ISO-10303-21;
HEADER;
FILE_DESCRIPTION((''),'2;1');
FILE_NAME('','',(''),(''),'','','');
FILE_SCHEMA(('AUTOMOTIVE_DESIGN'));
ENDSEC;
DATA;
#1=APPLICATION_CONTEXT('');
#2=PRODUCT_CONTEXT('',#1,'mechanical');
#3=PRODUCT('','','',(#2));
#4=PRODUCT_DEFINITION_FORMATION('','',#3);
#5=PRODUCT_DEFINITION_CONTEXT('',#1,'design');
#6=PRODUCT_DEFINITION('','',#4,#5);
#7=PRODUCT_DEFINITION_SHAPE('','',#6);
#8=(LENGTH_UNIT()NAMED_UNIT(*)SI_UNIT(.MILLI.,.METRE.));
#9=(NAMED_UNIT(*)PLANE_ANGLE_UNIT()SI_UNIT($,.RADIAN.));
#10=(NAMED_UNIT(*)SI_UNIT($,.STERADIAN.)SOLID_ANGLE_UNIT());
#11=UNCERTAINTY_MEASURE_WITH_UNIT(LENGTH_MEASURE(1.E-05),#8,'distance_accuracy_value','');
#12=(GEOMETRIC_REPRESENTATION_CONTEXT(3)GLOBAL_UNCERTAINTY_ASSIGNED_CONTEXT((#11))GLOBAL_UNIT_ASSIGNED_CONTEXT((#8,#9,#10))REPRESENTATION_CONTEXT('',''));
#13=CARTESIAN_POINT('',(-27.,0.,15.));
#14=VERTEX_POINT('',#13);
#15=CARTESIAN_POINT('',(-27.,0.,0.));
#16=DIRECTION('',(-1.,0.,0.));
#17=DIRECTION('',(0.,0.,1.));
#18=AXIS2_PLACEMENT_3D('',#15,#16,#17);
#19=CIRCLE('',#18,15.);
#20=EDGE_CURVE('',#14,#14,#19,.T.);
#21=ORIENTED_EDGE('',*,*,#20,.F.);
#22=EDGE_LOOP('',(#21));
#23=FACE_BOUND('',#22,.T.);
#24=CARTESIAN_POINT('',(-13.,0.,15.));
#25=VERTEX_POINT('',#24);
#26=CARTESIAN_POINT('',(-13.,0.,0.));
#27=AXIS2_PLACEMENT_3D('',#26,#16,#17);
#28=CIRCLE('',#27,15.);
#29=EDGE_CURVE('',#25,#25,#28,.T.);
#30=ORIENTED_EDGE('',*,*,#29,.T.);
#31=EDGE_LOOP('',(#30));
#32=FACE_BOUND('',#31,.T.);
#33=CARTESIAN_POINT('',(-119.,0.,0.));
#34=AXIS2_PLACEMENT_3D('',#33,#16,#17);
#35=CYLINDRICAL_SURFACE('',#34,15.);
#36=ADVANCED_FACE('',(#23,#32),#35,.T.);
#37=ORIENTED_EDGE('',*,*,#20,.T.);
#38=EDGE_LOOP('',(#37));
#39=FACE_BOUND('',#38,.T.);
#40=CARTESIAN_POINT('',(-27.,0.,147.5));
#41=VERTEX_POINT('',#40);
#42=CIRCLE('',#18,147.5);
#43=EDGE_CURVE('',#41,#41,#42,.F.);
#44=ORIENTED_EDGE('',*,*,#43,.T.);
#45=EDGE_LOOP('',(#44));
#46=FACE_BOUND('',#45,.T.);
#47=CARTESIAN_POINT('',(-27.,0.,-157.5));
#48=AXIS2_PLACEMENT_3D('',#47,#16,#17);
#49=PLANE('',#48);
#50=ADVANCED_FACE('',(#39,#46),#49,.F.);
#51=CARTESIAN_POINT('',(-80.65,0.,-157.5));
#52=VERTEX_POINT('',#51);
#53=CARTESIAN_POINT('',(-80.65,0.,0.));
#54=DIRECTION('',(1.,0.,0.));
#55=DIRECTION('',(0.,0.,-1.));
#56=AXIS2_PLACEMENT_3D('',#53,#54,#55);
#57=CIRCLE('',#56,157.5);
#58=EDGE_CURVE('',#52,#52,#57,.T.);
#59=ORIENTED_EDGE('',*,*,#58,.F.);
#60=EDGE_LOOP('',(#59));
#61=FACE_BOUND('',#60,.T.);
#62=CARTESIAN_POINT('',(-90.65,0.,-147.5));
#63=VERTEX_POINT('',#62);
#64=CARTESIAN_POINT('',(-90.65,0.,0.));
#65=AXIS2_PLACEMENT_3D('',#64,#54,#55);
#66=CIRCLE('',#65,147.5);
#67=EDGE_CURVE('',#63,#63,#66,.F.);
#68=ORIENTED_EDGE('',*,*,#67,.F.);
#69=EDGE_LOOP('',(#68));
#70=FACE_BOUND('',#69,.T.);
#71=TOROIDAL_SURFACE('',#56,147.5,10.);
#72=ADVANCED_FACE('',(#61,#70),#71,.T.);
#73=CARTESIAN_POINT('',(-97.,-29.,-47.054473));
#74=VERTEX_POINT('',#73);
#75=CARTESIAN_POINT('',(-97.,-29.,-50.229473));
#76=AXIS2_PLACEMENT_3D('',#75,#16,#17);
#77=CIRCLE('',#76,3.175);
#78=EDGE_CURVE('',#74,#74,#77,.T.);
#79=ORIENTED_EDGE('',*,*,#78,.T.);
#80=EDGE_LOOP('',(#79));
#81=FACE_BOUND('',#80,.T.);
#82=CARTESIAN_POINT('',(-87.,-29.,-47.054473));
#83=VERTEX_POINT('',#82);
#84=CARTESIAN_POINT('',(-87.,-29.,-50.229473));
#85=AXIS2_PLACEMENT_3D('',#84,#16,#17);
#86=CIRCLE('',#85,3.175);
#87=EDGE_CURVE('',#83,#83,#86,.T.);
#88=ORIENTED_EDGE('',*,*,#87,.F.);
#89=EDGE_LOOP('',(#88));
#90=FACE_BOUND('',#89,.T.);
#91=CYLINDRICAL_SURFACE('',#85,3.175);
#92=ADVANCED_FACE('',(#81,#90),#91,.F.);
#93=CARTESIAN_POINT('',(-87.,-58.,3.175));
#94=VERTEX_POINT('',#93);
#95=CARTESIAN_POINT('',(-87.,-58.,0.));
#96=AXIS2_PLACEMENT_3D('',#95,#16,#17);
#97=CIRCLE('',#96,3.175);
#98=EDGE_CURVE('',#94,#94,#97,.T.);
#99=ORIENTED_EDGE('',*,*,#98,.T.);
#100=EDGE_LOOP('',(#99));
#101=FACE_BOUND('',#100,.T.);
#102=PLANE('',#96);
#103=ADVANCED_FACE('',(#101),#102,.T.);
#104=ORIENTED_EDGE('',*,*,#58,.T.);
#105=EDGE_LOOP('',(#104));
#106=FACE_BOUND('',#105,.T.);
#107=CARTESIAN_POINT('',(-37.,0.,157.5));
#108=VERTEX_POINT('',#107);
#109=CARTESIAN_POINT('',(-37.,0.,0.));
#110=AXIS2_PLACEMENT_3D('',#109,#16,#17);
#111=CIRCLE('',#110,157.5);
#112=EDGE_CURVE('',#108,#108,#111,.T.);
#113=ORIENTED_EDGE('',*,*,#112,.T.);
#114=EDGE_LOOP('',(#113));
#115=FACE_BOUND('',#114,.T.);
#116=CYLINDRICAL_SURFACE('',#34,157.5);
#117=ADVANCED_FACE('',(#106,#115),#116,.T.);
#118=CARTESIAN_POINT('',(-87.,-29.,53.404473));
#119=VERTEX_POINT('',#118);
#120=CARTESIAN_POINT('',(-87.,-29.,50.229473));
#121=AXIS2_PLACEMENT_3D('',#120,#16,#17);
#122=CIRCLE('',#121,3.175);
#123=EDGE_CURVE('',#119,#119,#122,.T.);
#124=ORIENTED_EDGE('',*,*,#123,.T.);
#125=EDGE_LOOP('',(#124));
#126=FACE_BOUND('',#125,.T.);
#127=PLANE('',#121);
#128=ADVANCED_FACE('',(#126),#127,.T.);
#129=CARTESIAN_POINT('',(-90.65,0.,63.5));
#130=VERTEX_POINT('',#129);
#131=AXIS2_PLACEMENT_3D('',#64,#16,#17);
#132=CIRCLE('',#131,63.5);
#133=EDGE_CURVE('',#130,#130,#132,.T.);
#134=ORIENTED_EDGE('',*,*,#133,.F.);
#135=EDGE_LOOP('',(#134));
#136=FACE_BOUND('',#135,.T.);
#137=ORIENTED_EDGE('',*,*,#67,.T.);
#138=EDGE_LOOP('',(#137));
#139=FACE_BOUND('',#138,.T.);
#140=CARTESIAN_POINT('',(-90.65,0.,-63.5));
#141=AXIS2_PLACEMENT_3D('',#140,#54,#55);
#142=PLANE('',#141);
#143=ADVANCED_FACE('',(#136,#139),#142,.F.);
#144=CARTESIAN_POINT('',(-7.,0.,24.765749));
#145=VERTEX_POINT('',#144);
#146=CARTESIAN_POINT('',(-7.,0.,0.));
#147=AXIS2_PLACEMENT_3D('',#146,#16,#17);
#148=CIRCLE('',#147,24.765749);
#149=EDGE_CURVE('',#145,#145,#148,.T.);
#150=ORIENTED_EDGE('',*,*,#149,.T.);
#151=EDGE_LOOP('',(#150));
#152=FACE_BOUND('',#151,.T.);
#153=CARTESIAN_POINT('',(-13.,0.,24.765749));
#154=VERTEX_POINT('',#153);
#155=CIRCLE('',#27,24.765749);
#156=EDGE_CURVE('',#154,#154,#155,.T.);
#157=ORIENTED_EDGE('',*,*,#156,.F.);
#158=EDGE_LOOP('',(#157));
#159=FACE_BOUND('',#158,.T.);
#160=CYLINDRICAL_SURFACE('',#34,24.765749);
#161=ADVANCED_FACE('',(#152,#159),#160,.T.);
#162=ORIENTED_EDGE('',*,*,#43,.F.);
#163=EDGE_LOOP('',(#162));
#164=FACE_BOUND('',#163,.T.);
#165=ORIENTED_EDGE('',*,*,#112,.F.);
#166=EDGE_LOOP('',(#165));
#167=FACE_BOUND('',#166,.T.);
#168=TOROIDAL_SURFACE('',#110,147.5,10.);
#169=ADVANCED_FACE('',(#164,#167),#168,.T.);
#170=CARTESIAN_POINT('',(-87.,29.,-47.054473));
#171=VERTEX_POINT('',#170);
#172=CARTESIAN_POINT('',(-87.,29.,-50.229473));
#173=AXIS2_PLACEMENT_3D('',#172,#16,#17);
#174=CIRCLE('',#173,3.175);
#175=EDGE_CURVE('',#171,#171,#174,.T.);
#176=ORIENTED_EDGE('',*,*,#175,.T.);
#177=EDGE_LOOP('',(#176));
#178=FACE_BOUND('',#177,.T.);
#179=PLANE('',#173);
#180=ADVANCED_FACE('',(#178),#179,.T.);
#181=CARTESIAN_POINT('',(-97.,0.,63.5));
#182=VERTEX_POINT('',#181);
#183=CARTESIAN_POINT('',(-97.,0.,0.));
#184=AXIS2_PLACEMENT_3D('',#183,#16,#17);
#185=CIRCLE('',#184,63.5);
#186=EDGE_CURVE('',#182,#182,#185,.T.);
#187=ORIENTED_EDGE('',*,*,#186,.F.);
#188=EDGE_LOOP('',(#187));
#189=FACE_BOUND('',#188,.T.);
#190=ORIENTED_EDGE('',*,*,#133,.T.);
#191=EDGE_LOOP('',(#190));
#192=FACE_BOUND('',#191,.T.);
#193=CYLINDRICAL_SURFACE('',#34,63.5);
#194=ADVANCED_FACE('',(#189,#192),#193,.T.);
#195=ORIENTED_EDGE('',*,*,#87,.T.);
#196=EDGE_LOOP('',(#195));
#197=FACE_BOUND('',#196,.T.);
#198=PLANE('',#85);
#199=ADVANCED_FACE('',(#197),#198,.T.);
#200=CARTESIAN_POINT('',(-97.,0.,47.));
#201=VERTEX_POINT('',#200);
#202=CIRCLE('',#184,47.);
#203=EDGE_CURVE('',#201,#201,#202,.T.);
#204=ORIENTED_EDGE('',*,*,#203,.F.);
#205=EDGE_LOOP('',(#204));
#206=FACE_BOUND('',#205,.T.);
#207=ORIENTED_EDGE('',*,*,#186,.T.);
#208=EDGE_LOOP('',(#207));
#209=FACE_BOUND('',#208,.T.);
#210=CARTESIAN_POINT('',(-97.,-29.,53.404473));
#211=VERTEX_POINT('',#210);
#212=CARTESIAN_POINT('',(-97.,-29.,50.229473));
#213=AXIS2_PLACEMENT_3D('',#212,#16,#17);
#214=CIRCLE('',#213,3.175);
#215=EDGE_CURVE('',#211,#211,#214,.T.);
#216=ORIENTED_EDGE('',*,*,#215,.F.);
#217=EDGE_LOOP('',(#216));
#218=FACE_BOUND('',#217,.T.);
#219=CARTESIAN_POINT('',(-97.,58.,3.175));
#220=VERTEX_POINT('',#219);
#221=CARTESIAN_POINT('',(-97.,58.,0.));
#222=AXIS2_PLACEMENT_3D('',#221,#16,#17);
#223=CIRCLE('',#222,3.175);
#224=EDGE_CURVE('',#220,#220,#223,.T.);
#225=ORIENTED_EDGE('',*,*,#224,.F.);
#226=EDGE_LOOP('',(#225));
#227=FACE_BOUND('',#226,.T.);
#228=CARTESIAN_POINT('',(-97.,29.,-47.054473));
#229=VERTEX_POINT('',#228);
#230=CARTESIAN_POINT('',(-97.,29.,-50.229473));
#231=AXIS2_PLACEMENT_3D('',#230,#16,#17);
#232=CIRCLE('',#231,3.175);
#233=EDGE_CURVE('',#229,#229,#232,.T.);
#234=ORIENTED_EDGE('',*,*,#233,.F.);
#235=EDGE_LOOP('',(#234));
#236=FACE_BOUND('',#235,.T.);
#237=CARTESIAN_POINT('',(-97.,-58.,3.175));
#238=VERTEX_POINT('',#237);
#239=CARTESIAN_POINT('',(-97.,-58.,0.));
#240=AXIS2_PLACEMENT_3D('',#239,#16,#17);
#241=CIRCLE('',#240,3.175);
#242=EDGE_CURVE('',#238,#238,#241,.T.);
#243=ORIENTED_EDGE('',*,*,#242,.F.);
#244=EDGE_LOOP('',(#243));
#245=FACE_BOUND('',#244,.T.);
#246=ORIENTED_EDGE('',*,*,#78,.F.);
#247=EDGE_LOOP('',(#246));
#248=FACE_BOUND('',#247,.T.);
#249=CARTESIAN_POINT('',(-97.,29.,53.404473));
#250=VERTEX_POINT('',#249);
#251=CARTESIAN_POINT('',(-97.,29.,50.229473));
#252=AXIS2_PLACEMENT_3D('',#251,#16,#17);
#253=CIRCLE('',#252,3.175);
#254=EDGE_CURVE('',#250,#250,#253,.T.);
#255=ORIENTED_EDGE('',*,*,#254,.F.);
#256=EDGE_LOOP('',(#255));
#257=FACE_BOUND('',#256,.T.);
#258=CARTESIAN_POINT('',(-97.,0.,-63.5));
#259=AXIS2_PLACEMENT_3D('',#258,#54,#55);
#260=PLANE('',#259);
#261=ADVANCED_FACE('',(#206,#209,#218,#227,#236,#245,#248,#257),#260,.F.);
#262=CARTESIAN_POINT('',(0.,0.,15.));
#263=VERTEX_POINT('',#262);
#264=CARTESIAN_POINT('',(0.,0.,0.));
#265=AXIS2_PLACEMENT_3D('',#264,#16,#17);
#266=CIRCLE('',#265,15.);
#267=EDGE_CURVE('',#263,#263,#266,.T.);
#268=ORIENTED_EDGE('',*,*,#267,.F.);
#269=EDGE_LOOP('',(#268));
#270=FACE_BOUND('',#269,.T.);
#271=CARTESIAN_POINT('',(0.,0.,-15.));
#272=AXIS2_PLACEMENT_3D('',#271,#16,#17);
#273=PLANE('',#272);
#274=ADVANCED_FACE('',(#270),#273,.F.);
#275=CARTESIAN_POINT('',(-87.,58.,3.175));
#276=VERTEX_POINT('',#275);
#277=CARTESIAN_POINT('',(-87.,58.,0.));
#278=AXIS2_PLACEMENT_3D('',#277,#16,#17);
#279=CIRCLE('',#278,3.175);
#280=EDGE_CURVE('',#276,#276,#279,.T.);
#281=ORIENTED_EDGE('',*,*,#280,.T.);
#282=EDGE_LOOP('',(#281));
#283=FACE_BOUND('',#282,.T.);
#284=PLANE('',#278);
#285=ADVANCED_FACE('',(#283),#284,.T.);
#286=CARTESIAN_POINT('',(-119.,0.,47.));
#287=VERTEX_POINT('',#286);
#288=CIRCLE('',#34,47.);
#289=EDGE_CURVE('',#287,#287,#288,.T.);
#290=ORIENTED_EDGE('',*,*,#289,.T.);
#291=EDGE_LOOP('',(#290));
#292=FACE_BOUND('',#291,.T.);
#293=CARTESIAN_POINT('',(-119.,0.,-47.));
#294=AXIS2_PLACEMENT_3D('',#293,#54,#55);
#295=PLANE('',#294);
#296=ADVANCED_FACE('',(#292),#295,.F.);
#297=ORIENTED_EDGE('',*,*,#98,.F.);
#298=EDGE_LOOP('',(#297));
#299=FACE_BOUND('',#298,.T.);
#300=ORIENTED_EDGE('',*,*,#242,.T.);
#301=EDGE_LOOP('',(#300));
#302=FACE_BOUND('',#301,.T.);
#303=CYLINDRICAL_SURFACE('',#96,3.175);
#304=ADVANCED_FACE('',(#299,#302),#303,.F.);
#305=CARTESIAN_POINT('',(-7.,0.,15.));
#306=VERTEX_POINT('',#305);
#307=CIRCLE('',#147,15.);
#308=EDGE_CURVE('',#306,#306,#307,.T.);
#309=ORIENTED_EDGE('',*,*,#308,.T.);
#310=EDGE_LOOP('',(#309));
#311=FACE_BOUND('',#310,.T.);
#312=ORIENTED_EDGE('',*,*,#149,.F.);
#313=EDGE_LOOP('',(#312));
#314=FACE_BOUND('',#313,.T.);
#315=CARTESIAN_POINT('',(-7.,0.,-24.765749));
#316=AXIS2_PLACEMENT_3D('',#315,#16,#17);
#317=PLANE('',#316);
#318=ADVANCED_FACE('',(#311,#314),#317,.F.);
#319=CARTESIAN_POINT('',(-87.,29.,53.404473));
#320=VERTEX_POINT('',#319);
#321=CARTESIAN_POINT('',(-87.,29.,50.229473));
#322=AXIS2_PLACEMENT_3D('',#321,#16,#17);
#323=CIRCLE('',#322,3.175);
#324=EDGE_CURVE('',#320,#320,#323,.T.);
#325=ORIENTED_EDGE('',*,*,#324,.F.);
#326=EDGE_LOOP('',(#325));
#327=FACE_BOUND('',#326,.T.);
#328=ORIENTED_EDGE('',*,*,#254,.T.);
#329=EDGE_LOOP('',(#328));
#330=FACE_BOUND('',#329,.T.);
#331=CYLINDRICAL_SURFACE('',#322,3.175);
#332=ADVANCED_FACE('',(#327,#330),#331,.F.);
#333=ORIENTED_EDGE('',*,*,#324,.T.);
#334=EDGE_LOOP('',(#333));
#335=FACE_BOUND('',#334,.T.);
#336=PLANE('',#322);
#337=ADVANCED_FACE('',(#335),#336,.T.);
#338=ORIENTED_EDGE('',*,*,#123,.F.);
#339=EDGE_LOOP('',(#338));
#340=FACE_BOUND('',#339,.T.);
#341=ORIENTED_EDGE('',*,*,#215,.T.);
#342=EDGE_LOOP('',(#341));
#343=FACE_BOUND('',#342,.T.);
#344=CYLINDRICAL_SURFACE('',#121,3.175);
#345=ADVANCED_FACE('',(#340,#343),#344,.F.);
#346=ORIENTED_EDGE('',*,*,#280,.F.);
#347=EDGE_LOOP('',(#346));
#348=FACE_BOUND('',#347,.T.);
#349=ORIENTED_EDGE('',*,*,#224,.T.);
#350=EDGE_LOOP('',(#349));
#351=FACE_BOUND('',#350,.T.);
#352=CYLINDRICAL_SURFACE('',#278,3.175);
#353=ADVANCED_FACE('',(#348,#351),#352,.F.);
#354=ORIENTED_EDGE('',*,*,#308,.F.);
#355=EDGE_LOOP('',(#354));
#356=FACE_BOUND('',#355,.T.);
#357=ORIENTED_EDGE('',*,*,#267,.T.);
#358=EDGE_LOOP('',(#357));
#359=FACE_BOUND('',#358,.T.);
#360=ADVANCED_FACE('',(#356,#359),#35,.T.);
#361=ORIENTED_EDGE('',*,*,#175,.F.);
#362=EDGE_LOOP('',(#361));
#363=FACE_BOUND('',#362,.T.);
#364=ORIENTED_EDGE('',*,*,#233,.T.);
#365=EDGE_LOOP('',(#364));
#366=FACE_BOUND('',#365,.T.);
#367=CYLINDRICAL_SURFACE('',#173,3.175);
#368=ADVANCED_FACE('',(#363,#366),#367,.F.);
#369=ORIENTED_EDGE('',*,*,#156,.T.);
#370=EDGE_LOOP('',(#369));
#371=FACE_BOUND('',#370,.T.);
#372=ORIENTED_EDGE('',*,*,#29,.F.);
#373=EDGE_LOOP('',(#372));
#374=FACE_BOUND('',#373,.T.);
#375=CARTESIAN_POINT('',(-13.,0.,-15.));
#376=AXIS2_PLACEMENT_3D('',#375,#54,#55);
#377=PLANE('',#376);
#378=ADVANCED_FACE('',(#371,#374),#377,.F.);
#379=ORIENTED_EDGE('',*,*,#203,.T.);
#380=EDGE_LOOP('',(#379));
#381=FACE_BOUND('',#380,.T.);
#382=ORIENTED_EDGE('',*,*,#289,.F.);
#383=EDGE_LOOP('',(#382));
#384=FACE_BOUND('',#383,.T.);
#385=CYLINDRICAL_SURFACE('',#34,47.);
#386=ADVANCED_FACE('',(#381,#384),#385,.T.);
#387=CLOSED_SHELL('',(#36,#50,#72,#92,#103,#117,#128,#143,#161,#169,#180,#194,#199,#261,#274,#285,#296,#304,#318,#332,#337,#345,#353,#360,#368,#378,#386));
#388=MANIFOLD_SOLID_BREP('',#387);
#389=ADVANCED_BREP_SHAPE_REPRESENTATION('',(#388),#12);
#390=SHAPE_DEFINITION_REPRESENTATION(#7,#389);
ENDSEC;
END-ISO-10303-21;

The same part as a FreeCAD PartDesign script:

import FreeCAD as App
import Part
import Sketcher

V = App.Vector


def edges_at(feature, points):
    """Names of the edges that pass closest to the given points."""
    edges = feature.Shape.Edges
    near = lambda p: min(range(len(edges)), key=lambda i: edges[i].distToShape(Part.Vertex(*p))[0])
    return sorted({f"Edge{near(p) + 1}" for p in points})


def add_polygon(sketch, points):
    """Adds a closed chain of lines whose ends are joined by coincident constraints."""
    first, n = sketch.GeometryCount, len(points)
    for a, b in zip(points, points[1:] + points[:1]):
        sketch.addGeometry(Part.LineSegment(App.Vector(*a, 0), App.Vector(*b, 0)), False)
    for i in range(n):
        sketch.addConstraint(Sketcher.Constraint("Coincident", first + i, 2, first + (i + 1) % n, 1))

doc = App.newDocument("Part")
body = doc.addObject("PartDesign::Body", "Body")

# Sketch on XZ plane
sketch1 = doc.addObject("Sketcher::SketchObject", "Sketch")
body.addObject(sketch1)
sketch1.AttachmentSupport = (doc.XZ_Plane, [""])
sketch1.MapMode = "FlatFace"
add_polygon(sketch1, [(-27, -15), (-27, -158), (-91, -158), (-91, -64), (-97, -64), (-97, -47), (-119, -47), (-119, 0), (0, 0), (0, -15), (-7, -15), (-7, -25), (-13, -25), (-13, -15)])  # lines 0-13
sketch1.addConstraint([
    Sketcher.Constraint("Vertical", 0),
    Sketcher.Constraint("Horizontal", 1),
    Sketcher.Constraint("Vertical", 2),
    Sketcher.Constraint("Horizontal", 3),
    Sketcher.Constraint("Vertical", 4),
    Sketcher.Constraint("Horizontal", 5),
    Sketcher.Constraint("Vertical", 6),
    Sketcher.Constraint("Horizontal", 7),
    Sketcher.Constraint("Vertical", 8),
    Sketcher.Constraint("Horizontal", 9),
    Sketcher.Constraint("Vertical", 10),
    Sketcher.Constraint("Horizontal", 11),
    Sketcher.Constraint("Vertical", 12),
    Sketcher.Constraint("Horizontal", 13),
    Sketcher.Constraint("Coincident", 7, 2, -1, 1),
    Sketcher.Constraint("Horizontal", 9, 2, 12, 2),
    Sketcher.Constraint("DistanceX", 5, 2, 5, 1, 22.0),
    Sketcher.Constraint("DistanceX", 7, 1, 7, 2, 119.0),
    Sketcher.Constraint("DistanceX", 9, 2, 9, 1, 7.0),
    Sketcher.Constraint("DistanceX", 11, 2, 11, 1, 6.0),
    Sketcher.Constraint("DistanceX", 13, 2, 13, 1, 14.0),
    Sketcher.Constraint("DistanceY", 2, 1, 2, 2, 94.0),
    Sketcher.Constraint("DistanceY", 6, 1, 6, 2, 47.0),
    Sketcher.Constraint("DistanceY", 8, 2, 8, 1, 15.0),
    Sketcher.Constraint("DistanceY", 0, 2, 0, 1, 142.5),
    Sketcher.Constraint("DistanceX", 1, 2, 1, 1, 63.65),
    Sketcher.Constraint("DistanceY", 10, 2, 10, 1, 9.765749),
])
revolution = doc.addObject("PartDesign::Revolution", "Revolution")
body.addObject(revolution)
revolution.Profile = sketch1
revolution.ReferenceAxis = (sketch1, ["H_Axis"])
revolution.Angle = 360
doc.recompute()

fillet = doc.addObject("PartDesign::Fillet", "Fillet")
body.addObject(fillet)
fillet.Base = (revolution, edges_at(revolution, [(-27, 0, -157.5), (-90.65, 0, -157.5)]))
fillet.Radius = 10

# Sketch on YZ plane
sketch2 = doc.addObject("Sketcher::SketchObject", "Sketch001")
body.addObject(sketch2)
sketch2.AttachmentSupport = (doc.YZ_Plane, [""])
sketch2.MapMode = "FlatFace"
sketch2.AttachmentOffset = App.Placement(V(0, 0, -97), App.Rotation())
sketch2.addGeometry([
    Part.Circle(V(58, 0, 0), V(0, 0, 1), 3.2),  # 0
    Part.Circle(V(29, 50.2, 0), V(0, 0, 1), 3.2),  # 1
    Part.Circle(V(-29, 50.2, 0), V(0, 0, 1), 3.2),  # 2
    Part.Circle(V(-58, 0, 0), V(0, 0, 1), 3.2),  # 3
    Part.Circle(V(-29, -50.2, 0), V(0, 0, 1), 3.2),  # 4
    Part.Circle(V(29, -50.2, 0), V(0, 0, 1), 3.2),  # 5
], False)
sketch2.addConstraint([
    Sketcher.Constraint("Equal", 0, 1),
    Sketcher.Constraint("Equal", 1, 2),
    Sketcher.Constraint("Equal", 2, 3),
    Sketcher.Constraint("Equal", 3, 4),
    Sketcher.Constraint("Equal", 4, 5),
    Sketcher.Constraint("Symmetric", 0, 3, 3, 3, -1, 1),
    Sketcher.Constraint("Symmetric", 1, 3, 4, 3, -1, 1),
    Sketcher.Constraint("Symmetric", 2, 3, 5, 3, -1, 1),
    Sketcher.Constraint("Symmetric", 1, 3, 2, 3, -2),
    Sketcher.Constraint("PointOnObject", 0, 3, -1),
    Sketcher.Constraint("Diameter", 0, 6.35),
    Sketcher.Constraint("DistanceX", -1, 1, 0, 3, 58.0),
    Sketcher.Constraint("DistanceX", -1, 1, 1, 3, 29.0),
    Sketcher.Constraint("DistanceY", -1, 1, 1, 3, 50.229473),
])
pocket1 = doc.addObject("PartDesign::Pocket", "Pocket")
body.addObject(pocket1)
pocket1.Profile = sketch2
pocket1.Length = 10
pocket1.Reversed = True

doc.recompute()
